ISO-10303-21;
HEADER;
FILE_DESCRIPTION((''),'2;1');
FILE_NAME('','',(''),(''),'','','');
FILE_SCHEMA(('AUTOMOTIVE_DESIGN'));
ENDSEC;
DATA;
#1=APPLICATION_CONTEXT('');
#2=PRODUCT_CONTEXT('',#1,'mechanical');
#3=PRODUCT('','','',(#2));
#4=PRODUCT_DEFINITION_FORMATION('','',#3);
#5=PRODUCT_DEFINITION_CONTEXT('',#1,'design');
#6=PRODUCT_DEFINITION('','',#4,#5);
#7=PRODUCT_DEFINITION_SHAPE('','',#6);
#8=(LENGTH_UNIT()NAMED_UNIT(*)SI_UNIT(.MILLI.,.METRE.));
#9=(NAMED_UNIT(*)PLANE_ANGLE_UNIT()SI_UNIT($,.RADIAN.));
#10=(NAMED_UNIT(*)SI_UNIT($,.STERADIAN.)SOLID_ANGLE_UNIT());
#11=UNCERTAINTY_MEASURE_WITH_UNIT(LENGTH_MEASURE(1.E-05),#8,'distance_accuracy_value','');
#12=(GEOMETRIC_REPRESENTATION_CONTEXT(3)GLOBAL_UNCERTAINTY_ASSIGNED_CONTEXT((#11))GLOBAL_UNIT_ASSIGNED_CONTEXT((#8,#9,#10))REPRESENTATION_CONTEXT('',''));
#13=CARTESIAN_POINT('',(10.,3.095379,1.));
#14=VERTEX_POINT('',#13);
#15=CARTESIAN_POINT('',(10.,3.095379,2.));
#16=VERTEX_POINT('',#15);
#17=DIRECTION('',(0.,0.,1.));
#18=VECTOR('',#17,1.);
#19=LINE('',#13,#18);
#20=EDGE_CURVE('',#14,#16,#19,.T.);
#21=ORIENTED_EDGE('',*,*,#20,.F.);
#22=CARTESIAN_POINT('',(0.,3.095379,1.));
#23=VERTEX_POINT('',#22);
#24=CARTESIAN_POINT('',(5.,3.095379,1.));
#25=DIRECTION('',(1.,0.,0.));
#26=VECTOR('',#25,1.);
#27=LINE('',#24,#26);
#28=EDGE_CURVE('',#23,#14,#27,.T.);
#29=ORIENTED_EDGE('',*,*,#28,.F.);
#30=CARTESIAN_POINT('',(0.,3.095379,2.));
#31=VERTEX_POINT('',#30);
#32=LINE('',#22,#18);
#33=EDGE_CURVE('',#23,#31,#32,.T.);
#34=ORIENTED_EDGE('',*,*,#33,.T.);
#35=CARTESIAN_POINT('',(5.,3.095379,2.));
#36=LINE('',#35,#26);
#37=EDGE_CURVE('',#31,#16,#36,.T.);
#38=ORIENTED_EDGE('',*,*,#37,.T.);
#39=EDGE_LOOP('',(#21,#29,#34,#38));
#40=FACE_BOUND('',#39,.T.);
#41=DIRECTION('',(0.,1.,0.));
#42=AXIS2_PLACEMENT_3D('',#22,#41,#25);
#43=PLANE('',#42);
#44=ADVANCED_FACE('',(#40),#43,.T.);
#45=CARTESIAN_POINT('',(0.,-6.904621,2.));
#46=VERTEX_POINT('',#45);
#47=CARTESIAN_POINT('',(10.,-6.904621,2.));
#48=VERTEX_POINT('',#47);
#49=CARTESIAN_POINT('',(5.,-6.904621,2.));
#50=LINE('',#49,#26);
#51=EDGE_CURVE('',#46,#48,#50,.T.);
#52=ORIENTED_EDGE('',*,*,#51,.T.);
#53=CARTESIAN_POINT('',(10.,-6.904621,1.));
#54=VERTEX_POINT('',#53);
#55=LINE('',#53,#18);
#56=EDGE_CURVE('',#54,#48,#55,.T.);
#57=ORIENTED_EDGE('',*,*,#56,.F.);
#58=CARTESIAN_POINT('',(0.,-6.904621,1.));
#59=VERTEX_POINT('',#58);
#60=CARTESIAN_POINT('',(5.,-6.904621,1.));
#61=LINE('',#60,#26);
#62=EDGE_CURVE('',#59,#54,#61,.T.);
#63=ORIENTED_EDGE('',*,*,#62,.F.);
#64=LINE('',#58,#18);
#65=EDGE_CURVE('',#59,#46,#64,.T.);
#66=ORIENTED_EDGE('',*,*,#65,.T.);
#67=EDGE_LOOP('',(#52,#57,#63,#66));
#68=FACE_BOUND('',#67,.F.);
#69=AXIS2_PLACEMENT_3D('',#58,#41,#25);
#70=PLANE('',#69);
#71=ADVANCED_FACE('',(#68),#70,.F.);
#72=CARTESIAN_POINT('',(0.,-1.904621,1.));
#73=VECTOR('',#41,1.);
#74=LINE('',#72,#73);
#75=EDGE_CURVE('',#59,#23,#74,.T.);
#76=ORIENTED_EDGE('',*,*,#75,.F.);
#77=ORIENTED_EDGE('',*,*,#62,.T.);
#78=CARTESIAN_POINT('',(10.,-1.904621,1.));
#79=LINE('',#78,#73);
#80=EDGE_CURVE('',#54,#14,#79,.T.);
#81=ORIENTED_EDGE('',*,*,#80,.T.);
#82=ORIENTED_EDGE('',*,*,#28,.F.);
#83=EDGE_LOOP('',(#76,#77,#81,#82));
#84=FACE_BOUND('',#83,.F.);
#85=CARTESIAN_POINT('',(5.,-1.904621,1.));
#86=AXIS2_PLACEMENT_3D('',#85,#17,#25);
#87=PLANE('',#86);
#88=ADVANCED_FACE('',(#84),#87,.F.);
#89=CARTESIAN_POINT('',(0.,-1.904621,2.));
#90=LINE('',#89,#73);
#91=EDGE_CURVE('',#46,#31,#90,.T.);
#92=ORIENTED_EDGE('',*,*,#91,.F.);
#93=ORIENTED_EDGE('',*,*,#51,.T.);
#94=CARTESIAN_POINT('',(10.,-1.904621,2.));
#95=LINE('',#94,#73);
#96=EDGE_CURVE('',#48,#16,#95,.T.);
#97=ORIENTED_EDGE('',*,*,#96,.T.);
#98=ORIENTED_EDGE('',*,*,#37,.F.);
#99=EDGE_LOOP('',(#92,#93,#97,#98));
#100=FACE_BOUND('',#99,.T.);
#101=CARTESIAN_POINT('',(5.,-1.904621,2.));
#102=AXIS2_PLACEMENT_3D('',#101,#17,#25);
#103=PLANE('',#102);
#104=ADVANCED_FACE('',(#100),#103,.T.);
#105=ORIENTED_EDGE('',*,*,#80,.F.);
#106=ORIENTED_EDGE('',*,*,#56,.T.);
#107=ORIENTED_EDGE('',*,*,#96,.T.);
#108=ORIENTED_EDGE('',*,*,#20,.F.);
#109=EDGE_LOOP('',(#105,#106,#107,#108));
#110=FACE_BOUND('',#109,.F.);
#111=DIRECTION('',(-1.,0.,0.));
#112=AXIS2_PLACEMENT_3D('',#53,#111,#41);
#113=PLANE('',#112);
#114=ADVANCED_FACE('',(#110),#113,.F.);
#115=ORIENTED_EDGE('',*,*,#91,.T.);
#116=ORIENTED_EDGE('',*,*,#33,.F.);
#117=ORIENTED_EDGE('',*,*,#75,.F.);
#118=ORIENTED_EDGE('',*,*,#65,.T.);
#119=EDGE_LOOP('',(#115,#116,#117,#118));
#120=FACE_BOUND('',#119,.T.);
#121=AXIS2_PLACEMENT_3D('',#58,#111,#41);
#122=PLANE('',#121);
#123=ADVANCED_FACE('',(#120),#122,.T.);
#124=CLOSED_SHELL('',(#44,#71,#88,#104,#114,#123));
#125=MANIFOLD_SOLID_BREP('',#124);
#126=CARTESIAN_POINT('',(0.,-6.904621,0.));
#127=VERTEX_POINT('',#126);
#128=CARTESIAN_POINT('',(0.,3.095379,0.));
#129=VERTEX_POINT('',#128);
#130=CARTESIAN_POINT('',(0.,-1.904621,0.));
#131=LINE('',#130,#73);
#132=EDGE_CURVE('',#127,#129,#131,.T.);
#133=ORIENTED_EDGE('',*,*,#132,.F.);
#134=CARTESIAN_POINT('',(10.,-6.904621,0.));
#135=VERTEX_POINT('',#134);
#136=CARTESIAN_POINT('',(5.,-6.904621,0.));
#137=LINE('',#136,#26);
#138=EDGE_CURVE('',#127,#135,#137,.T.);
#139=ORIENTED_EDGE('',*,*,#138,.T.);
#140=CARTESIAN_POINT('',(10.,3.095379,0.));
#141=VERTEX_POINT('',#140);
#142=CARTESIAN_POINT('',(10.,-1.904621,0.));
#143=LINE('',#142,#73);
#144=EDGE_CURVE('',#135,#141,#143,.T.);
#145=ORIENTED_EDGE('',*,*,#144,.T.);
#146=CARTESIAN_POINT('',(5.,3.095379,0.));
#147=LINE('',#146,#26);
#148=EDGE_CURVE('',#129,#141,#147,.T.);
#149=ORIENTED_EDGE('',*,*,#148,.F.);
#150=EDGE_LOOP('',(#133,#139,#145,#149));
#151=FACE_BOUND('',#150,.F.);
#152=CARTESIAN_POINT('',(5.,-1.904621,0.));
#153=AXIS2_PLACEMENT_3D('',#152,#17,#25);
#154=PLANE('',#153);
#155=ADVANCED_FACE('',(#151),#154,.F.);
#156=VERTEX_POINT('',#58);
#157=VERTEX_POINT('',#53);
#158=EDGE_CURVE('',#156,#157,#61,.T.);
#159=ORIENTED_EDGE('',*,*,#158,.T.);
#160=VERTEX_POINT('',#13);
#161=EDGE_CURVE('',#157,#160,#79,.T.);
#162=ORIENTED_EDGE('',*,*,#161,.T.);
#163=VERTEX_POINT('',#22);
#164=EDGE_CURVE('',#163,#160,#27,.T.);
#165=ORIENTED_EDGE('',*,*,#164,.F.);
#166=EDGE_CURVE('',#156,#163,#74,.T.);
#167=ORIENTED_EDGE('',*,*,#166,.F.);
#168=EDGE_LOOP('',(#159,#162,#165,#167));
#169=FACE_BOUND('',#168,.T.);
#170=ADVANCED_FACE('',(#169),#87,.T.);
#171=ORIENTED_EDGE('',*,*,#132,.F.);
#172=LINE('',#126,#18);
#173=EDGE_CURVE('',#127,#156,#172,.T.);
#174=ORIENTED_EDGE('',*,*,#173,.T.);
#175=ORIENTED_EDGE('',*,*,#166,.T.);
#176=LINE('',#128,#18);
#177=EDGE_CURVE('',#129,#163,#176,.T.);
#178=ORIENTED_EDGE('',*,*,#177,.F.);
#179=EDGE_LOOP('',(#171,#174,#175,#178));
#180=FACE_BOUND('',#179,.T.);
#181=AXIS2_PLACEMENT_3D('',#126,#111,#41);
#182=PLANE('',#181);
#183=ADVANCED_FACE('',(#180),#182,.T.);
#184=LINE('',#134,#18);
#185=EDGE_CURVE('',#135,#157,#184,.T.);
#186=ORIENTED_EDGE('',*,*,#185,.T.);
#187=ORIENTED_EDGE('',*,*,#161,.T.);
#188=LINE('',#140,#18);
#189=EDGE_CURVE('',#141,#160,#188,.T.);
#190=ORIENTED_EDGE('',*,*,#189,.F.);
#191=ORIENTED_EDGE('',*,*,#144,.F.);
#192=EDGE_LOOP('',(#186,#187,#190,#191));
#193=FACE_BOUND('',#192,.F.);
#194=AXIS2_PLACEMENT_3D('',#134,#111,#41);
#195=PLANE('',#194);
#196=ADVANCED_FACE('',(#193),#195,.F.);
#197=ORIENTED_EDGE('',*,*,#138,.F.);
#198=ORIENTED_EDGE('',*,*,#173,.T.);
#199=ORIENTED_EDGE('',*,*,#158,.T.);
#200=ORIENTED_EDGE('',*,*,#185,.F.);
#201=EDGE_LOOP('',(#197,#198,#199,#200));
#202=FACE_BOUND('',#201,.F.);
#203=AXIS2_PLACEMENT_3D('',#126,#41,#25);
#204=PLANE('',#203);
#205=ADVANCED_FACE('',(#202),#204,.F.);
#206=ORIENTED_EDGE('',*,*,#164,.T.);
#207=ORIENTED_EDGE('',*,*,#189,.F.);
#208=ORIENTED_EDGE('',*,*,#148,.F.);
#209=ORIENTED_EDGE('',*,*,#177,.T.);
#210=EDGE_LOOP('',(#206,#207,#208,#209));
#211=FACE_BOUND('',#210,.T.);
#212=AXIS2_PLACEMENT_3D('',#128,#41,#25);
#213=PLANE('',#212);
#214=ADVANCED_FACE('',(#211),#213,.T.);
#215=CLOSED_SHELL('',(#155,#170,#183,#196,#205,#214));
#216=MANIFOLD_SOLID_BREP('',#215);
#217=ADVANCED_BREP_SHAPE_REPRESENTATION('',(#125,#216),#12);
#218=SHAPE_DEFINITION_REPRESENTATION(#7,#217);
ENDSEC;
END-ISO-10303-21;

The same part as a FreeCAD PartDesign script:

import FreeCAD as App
import Part
import Sketcher
from FreeCAD import Vector
Q = App.Units.Quantity

doc = App.newDocument("Part")
body = doc.addObject("PartDesign::Body", "Body")

# Sketch on XY plane
sketch1 = body.newObject("Sketcher::SketchObject", "Sketch")
sketch1.AttachmentSupport = (doc.getObject("XY_Plane"), [""])
sketch1.MapMode = "FlatFace"
sketch1.addGeometry(Part.LineSegment(Vector(0, 3, 0), Vector(0, -7, 0)), False)
sketch1.addGeometry(Part.LineSegment(Vector(0, -7, 0), Vector(10, -7, 0)), False)
sketch1.addGeometry(Part.LineSegment(Vector(10, -7, 0), Vector(10, 3, 0)), False)
sketch1.addGeometry(Part.LineSegment(Vector(10, 3, 0), Vector(0, 3, 0)), False)
sketch1.addConstraint(Sketcher.Constraint("Coincident", 0, 2, 1, 1))
sketch1.addConstraint(Sketcher.Constraint("Coincident", 1, 2, 2, 1))
sketch1.addConstraint(Sketcher.Constraint("Coincident", 2, 2, 3, 1))
sketch1.addConstraint(Sketcher.Constraint("Coincident", 3, 2, 0, 1))
sketch1.addConstraint(Sketcher.Constraint("Vertical", 0))
sketch1.addConstraint(Sketcher.Constraint("Horizontal", 1))
sketch1.addConstraint(Sketcher.Constraint("Vertical", 2))
sketch1.addConstraint(Sketcher.Constraint("Horizontal", 3))
sketch1.addConstraint(Sketcher.Constraint("PointOnObject", 0, 2, -2))
sketch1.addConstraint(Sketcher.Constraint("Equal", 3, 0))
sketch1.addConstraint(Sketcher.Constraint("DistanceX", 1, 1, 1, 2, Q("10 mm")))
sketch1.addConstraint(Sketcher.Constraint("DistanceY", 0, 2, -1, 1, Q("6.904621 mm")))
pad1 = body.newObject("PartDesign::Pad", "Pad")
pad1.Profile = sketch1
pad1.Length = 1
body2 = doc.addObject("PartDesign::Body", "Body001")

# Sketch on XY plane
sketch2 = body2.newObject("Sketcher::SketchObject", "Sketch001")
sketch2.AttachmentSupport = (doc.getObject("XY_Plane001"), [""])
sketch2.MapMode = "FlatFace"
sketch2.AttachmentOffset = App.Placement(Vector(0, 0, 1), App.Rotation())
sketch2.addGeometry(Part.LineSegment(Vector(0, 3, 0), Vector(0, -7, 0)), False)
sketch2.addGeometry(Part.LineSegment(Vector(0, -7, 0), Vector(10, -7, 0)), False)
sketch2.addGeometry(Part.LineSegment(Vector(10, -7, 0), Vector(10, 3, 0)), False)
sketch2.addGeometry(Part.LineSegment(Vector(10, 3, 0), Vector(0, 3, 0)), False)
sketch2.addConstraint(Sketcher.Constraint("Coincident", 0, 2, 1, 1))
sketch2.addConstraint(Sketcher.Constraint("Coincident", 1, 2, 2, 1))
sketch2.addConstraint(Sketcher.Constraint("Coincident", 2, 2, 3, 1))
sketch2.addConstraint(Sketcher.Constraint("Coincident", 3, 2, 0, 1))
sketch2.addConstraint(Sketcher.Constraint("Vertical", 0))
sketch2.addConstraint(Sketcher.Constraint("Horizontal", 1))
sketch2.addConstraint(Sketcher.Constraint("Vertical", 2))
sketch2.addConstraint(Sketcher.Constraint("Horizontal", 3))
sketch2.addConstraint(Sketcher.Constraint("PointOnObject", 0, 2, -2))
sketch2.addConstraint(Sketcher.Constraint("Equal", 3, 0))
sketch2.addConstraint(Sketcher.Constraint("DistanceX", 1, 1, 1, 2, Q("10 mm")))
sketch2.addConstraint(Sketcher.Constraint("DistanceY", 0, 2, -1, 1, Q("6.904621 mm")))
pad2 = body2.newObject("PartDesign::Pad", "Pad001")
pad2.Profile = sketch2
pad2.Length = 1

doc.recompute()
